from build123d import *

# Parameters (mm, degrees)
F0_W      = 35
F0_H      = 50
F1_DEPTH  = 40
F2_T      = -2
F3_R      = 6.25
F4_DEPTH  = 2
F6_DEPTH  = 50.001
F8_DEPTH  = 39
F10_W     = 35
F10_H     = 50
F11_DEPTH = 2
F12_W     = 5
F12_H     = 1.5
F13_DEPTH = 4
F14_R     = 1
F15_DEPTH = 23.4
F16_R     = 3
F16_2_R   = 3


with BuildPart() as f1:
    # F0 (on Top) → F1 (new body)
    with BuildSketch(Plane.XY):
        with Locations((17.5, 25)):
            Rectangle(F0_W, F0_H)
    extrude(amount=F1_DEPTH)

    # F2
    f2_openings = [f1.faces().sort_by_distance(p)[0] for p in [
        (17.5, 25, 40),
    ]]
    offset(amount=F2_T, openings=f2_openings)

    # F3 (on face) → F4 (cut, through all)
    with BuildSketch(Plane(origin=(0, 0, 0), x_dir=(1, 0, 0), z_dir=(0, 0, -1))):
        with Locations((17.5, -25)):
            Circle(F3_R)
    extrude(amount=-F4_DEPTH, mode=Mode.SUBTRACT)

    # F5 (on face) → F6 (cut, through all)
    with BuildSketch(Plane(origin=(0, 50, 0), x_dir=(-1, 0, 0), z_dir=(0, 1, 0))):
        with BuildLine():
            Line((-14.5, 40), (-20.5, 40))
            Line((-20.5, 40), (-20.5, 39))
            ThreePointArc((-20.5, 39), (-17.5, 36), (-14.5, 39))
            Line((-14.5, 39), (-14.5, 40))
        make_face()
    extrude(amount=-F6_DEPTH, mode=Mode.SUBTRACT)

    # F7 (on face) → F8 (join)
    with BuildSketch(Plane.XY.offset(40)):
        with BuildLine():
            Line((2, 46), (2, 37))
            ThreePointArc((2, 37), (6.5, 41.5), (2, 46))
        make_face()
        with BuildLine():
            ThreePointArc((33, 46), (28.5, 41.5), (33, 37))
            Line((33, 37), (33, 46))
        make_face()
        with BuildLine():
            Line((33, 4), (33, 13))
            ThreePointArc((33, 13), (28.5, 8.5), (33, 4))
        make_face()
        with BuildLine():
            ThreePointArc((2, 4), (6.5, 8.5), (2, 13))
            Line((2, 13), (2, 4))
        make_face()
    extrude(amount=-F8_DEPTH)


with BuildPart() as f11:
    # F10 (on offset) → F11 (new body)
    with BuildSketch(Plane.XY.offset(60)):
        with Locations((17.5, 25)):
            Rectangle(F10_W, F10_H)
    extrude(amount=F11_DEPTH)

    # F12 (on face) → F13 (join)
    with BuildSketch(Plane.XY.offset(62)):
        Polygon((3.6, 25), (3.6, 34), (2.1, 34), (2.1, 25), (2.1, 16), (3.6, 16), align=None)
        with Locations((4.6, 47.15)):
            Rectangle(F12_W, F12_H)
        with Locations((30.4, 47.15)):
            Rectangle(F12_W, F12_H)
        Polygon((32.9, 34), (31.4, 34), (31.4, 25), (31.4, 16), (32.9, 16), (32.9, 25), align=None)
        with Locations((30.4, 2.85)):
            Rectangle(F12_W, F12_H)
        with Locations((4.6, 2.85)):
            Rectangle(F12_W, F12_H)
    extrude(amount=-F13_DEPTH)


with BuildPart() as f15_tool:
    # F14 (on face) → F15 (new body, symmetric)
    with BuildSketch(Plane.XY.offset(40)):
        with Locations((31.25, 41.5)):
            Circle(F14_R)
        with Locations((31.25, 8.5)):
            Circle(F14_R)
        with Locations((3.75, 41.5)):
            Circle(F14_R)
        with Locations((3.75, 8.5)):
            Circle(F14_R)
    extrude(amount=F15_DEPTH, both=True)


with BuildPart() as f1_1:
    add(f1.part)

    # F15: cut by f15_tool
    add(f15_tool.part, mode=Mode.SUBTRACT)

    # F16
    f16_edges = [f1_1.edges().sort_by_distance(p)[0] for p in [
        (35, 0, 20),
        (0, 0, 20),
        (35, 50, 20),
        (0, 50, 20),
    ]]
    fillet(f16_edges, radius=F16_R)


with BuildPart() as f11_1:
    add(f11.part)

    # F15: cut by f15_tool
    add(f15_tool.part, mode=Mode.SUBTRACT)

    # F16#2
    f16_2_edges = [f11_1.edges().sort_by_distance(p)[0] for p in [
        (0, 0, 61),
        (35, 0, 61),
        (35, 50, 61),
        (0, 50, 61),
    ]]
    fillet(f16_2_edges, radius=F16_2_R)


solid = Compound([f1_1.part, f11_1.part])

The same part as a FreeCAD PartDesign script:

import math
import FreeCAD as App
import Part
import Sketcher
from FreeCAD import Vector


def edges_at(feature, points):
    """Names of the edges that pass closest to the given points."""
    edges = feature.Shape.Edges
    near = lambda p: min(range(len(edges)), key=lambda i: edges[i].distToShape(Part.Vertex(*p))[0])
    return sorted({f"Edge{near(p) + 1}" for p in points})


def faces_at(feature, points):
    """Names of the faces that lie closest to the given points."""
    faces = feature.Shape.Faces
    near = lambda p: min(range(len(faces)), key=lambda i: faces[i].distToShape(Part.Vertex(*p))[0])
    return sorted({f"Face{near(p) + 1}" for p in points})


def add_polygon(sketch, points):
    """Adds a closed chain of lines whose ends are joined by coincident constraints."""
    first, n = sketch.GeometryCount, len(points)
    for a, b in zip(points, points[1:] + points[:1]):
        sketch.addGeometry(Part.LineSegment(App.Vector(*a, 0), App.Vector(*b, 0)), False)
    for i in range(n):
        sketch.addConstraint(Sketcher.Constraint("Coincident", first + i, 2, first + (i + 1) % n, 1))

doc = App.newDocument("Part")
params = doc.addObject("Spreadsheet::Sheet", "Params")
for row, (alias, value) in enumerate([
    ("sketch1_width", "35 mm"),
    ("sketch1_height", "50 mm"),
    ("pad1_length", "40 mm"),
    ("thickness_wall", "2 mm"),
    ("sketch2_diameter", "12.5 mm"),
    ("sketch3_radius", "3 mm"),
    ("sketch3_height", "1 mm"),
    ("sketch4_radius", "4.5 mm"),
    ("pad2_length", "39 mm"),
    ("sketch5_width", "35 mm"),
    ("sketch5_height", "50 mm"),
    ("pad3_length", "2 mm"),
    ("sketch6_width", "5 mm"),
    ("sketch6_height", "18 mm"),
    ("sketch6_width2", "1.5 mm"),
    ("pad4_length", "4 mm"),
    ("sketch7_diameter", "2 mm"),
    ("pad5_length", "46.8 mm"),
    ("fillet_radius", "3 mm"),
    ("fillet2_radius", "3 mm"),
], start=1):
    params.set(f"A{row}", alias)
    params.set(f"B{row}", "=" + value)
    params.setAlias(f"B{row}", alias)

body = doc.addObject("PartDesign::Body", "Body")

# Sketch on XY plane
sketch1 = doc.addObject("Sketcher::SketchObject", "Sketch")
body.addObject(sketch1)
sketch1.AttachmentSupport = (doc.XY_Plane, [""])
sketch1.MapMode = "FlatFace"
add_polygon(sketch1, [(0, 50), (0, 0), (35, 0), (35, 50)])  # lines 0-3
sketch1.addConstraint([
    Sketcher.Constraint("Vertical", 0),
    Sketcher.Constraint("Horizontal", 1),
    Sketcher.Constraint("Vertical", 2),
    Sketcher.Constraint("Horizontal", 3),
    Sketcher.Constraint("Coincident", 0, 2, -1, 1),
    Sketcher.Constraint("DistanceX", 1, 1, 1, 2, 35.0),
    Sketcher.Constraint("DistanceY", 0, 2, 0, 1, 50.0),
])
sketch1.setExpression("Constraints[9]", "Params.sketch1_width")
sketch1.setExpression("Constraints[10]", "Params.sketch1_height")
pad1 = doc.addObject("PartDesign::Pad", "Pad")
body.addObject(pad1)
pad1.Profile = sketch1
pad1.setExpression("Length", "Params.pad1_length")
doc.recompute()

thickness = doc.addObject("PartDesign::Thickness", "Thickness")
body.addObject(thickness)
thickness.Base = (pad1, faces_at(pad1, [(17.5, 25, 40)]))
thickness.setExpression("Value", "Params.thickness_wall")
thickness.Reversed = True
thickness.Join = "Arc"

# Sketch on XY plane
sketch2 = doc.addObject("Sketcher::SketchObject", "Sketch001")
body.addObject(sketch2)
sketch2.AttachmentSupport = (doc.XY_Plane, [""])
sketch2.MapMode = "FlatFace"
sketch2.addGeometry(Part.Circle(Vector(17.5, 25, 0), Vector(0, 0, 1), 6.25), False)
sketch2.addConstraint([
    Sketcher.Constraint("Diameter", 0, 12.5),
    Sketcher.Constraint("DistanceY", -1, 1, 0, 3, 25.0),
    Sketcher.Constraint("DistanceX", -1, 1, 0, 3, 17.5),
])
sketch2.setExpression("Constraints[0]", "Params.sketch2_diameter")
pocket1 = doc.addObject("PartDesign::Pocket", "Pocket")
body.addObject(pocket1)
pocket1.Profile = sketch2
pocket1.Type = "ThroughAll"
pocket1.Reversed = True

# Sketch on XZ plane
sketch3 = doc.addObject("Sketcher::SketchObject", "Sketch002")
body.addObject(sketch3)
sketch3.AttachmentSupport = (doc.XZ_Plane, [""])
sketch3.MapMode = "FlatFace"
sketch3.AttachmentOffset = App.Placement(Vector(0, 0, -50), App.Rotation())
sketch3.addGeometry([
    Part.LineSegment(Vector(14.5, 40, 0), Vector(20.5, 40, 0)),
    Part.LineSegment(Vector(20.5, 40, 0), Vector(20.5, 39, 0)),
    Part.ArcOfCircle(Part.Circle(Vector(17.5, 39, 0), Vector(0, 0, 1), 3), math.radians(180), math.radians(360)),
    Part.LineSegment(Vector(14.5, 39, 0), Vector(14.5, 40, 0)),
], False)
sketch3.addConstraint([
    Sketcher.Constraint("Coincident", 0, 2, 1, 1),
    Sketcher.Constraint("Tangent", 1, 2, 2, 2),
    Sketcher.Constraint("Tangent", 2, 1, 3, 1),
    Sketcher.Constraint("Coincident", 3, 2, 0, 1),
    Sketcher.Constraint("Horizontal", 0),
    Sketcher.Constraint("Vertical", 1),
    Sketcher.Constraint("Vertical", 3),
    Sketcher.Constraint("Radius", 2, 3.0),
    Sketcher.Constraint("DistanceY", 1, 2, 1, 1, 1.0),
    Sketcher.Constraint("DistanceY", -1, 1, 2, 3, 39.0),
    Sketcher.Constraint("DistanceX", -1, 1, 2, 3, 17.5),
])
sketch3.setExpression("Constraints[7]", "Params.sketch3_radius")
sketch3.setExpression("Constraints[8]", "Params.sketch3_height")
pocket2 = doc.addObject("PartDesign::Pocket", "Pocket001")
body.addObject(pocket2)
pocket2.Profile = sketch3
pocket2.Type = "ThroughAll"
pocket2.Reversed = True

# Sketch on XY plane
sketch4 = doc.addObject("Sketcher::SketchObject", "Sketch003")
body.addObject(sketch4)
sketch4.AttachmentSupport = (doc.XY_Plane, [""])
sketch4.MapMode = "FlatFace"
sketch4.AttachmentOffset = App.Placement(Vector(0, 0, 40), App.Rotation())
sketch4.addGeometry([
    Part.LineSegment(Vector(2, 46, 0), Vector(2, 37, 0)),  # 0
    Part.ArcOfCircle(Part.Circle(Vector(2, 41.5, 0), Vector(0, 0, 1), 4.5), math.radians(-90), math.radians(90)),  # 1
    Part.ArcOfCircle(Part.Circle(Vector(33, 41.5, 0), Vector(0, 0, 1), 4.5), math.radians(90), math.radians(270)),  # 2
    Part.LineSegment(Vector(33, 37, 0), Vector(33, 46, 0)),  # 3
    Part.LineSegment(Vector(33, 4, 0), Vector(33, 13, 0)),  # 4
    Part.ArcOfCircle(Part.Circle(Vector(33, 8.5, 0), Vector(0, 0, 1), 4.5), math.radians(90), math.radians(270)),  # 5
    Part.ArcOfCircle(Part.Circle(Vector(2, 8.5, 0), Vector(0, 0, 1), 4.5), math.radians(-90), math.radians(90)),  # 6
    Part.LineSegment(Vector(2, 13, 0), Vector(2, 4, 0)),  # 7
], False)
sketch4.addConstraint([
    Sketcher.Constraint("Coincident", 0, 1, 1, 2),
    Sketcher.Constraint("Coincident", 1, 1, 0, 2),
    Sketcher.Constraint("Coincident", 2, 1, 3, 2),
    Sketcher.Constraint("Coincident", 3, 1, 2, 2),
    Sketcher.Constraint("Coincident", 4, 1, 5, 2),
    Sketcher.Constraint("Coincident", 5, 1, 4, 2),
    Sketcher.Constraint("Coincident", 6, 1, 7, 2),
    Sketcher.Constraint("Coincident", 7, 1, 6, 2),
    Sketcher.Constraint("Vertical", 0),
    Sketcher.Constraint("Vertical", 3),
    Sketcher.Constraint("Vertical", 4),
    Sketcher.Constraint("Vertical", 7),
    Sketcher.Constraint("Equal", 1, 2),
    Sketcher.Constraint("Equal", 2, 5),
    Sketcher.Constraint("Equal", 5, 6),
    Sketcher.Constraint("Horizontal", 1, 3, 2, 3),
    Sketcher.Constraint("Horizontal", 5, 3, 6, 3),
    Sketcher.Constraint("Vertical", 2, 3, 5, 3),
    Sketcher.Constraint("Vertical", 1, 3, 6, 3),
    Sketcher.Constraint("Vertical", 6, 3, 0, 1),
    Sketcher.Constraint("Vertical", 5, 3, 2, 1),
    Sketcher.Constraint("Vertical", 3, 1, 4, 1),
    Sketcher.Constraint("Vertical", 1, 1, 6, 1),
    Sketcher.Constraint("Radius", 1, 4.5),
    Sketcher.Constraint("DistanceX", -1, 1, 1, 3, 2.0),
    Sketcher.Constraint("DistanceX", -1, 1, 2, 3, 33.0),
    Sketcher.Constraint("DistanceY", -1, 1, 0, 1, 46.0),
    Sketcher.Constraint("DistanceY", -1, 1, 4, 1, 4.0),
])
sketch4.setExpression("Constraints[23]", "Params.sketch4_radius")
pad2 = doc.addObject("PartDesign::Pad", "Pad001")
body.addObject(pad2)
pad2.Profile = sketch4
pad2.setExpression("Length", "Params.pad2_length")
pad2.Reversed = True
body2 = doc.addObject("PartDesign::Body", "Body001")

# Sketch on XY plane
sketch5 = doc.addObject("Sketcher::SketchObject", "Sketch004")
body2.addObject(sketch5)
sketch5.AttachmentSupport = (doc.getObject("XY_Plane001"), [""])
sketch5.MapMode = "FlatFace"
sketch5.AttachmentOffset = App.Placement(Vector(0, 0, 60), App.Rotation())
add_polygon(sketch5, [(0, 50), (0, 0), (35, 0), (35, 50)])  # lines 0-3
sketch5.addConstraint([
    Sketcher.Constraint("Vertical", 0),
    Sketcher.Constraint("Horizontal", 1),
    Sketcher.Constraint("Vertical", 2),
    Sketcher.Constraint("Horizontal", 3),
    Sketcher.Constraint("Coincident", 0, 2, -1, 1),
    Sketcher.Constraint("DistanceX", 1, 1, 1, 2, 35.0),
    Sketcher.Constraint("DistanceY", 0, 2, 0, 1, 50.0),
])
sketch5.setExpression("Constraints[9]", "Params.sketch5_width")
sketch5.setExpression("Constraints[10]", "Params.sketch5_height")
pad3 = doc.addObject("PartDesign::Pad", "Pad002")
body2.addObject(pad3)
pad3.Profile = sketch5
pad3.setExpression("Length", "Params.pad3_length")

# Sketch on XY plane
sketch6 = doc.addObject("Sketcher::SketchObject", "Sketch005")
body2.addObject(sketch6)
sketch6.AttachmentSupport = (doc.getObject("XY_Plane001"), [""])
sketch6.MapMode = "FlatFace"
sketch6.AttachmentOffset = App.Placement(Vector(0, 0, 62), App.Rotation())
add_polygon(sketch6, [(3.6, 34), (2.1, 34), (2.1, 16), (3.6, 16)])  # lines 0-3
add_polygon(sketch6, [(2.1, 47.9), (2.1, 46.4), (7.1, 46.4), (7.1, 47.9)])  # lines 4-7
add_polygon(sketch6, [(27.9, 47.9), (27.9, 46.4), (32.9, 46.4), (32.9, 47.9)])  # lines 8-11
add_polygon(sketch6, [(32.9, 34), (31.4, 34), (31.4, 16), (32.9, 16)])  # lines 12-15
add_polygon(sketch6, [(27.9, 3.6), (27.9, 2.1), (32.9, 2.1), (32.9, 3.6)])  # lines 16-19
add_polygon(sketch6, [(2.1, 3.6), (2.1, 2.1), (7.1, 2.1), (7.1, 3.6)])  # lines 20-23
sketch6.addConstraint([
    Sketcher.Constraint("Horizontal", 0),
    Sketcher.Constraint("Vertical", 1),
    Sketcher.Constraint("Horizontal", 2),
    Sketcher.Constraint("Vertical", 3),
    Sketcher.Constraint("Vertical", 4),
    Sketcher.Constraint("Horizontal", 5),
    Sketcher.Constraint("Vertical", 6),
    Sketcher.Constraint("Horizontal", 7),
    Sketcher.Constraint("Vertical", 8),
    Sketcher.Constraint("Horizontal", 9),
    Sketcher.Constraint("Vertical", 10),
    Sketcher.Constraint("Horizontal", 11),
    Sketcher.Constraint("Horizontal", 12),
    Sketcher.Constraint("Vertical", 13),
    Sketcher.Constraint("Horizontal", 14),
    Sketcher.Constraint("Vertical", 15),
    Sketcher.Constraint("Vertical", 16),
    Sketcher.Constraint("Horizontal", 17),
    Sketcher.Constraint("Vertical", 18),
    Sketcher.Constraint("Horizontal", 19),
    Sketcher.Constraint("Vertical", 20),
    Sketcher.Constraint("Horizontal", 21),
    Sketcher.Constraint("Vertical", 22),
    Sketcher.Constraint("Horizontal", 23),
    Sketcher.Constraint("Horizontal", 5, 2, 8, 2),
    Sketcher.Constraint("Horizontal", 7, 2, 10, 2),
    Sketcher.Constraint("Horizontal", 3, 2, 12, 2),
    Sketcher.Constraint("Horizontal", 2, 2, 13, 2),
    Sketcher.Constraint("Horizontal", 17, 2, 20, 2),
    Sketcher.Constraint("Horizontal", 19, 2, 22, 2),
    Sketcher.Constraint("Vertical", 1, 2, 4, 2),
    Sketcher.Constraint("Vertical", 10, 2, 14, 2),
    Sketcher.Constraint("Vertical", 11, 2, 16, 2),
    Sketcher.Constraint("Vertical", 15, 2, 17, 2),
    Sketcher.Constraint("Vertical", 7, 2, 20, 2),
    Sketcher.Constraint("Vertical", 6, 2, 21, 2),
    Sketcher.Constraint("Equal", 7, 9),
    Sketcher.Constraint("Equal", 2, 12),
    Sketcher.Constraint("Equal", 14, 4),
    Sketcher.Constraint("Equal", 10, 16),
    Sketcher.Constraint("DistanceX", 5, 1, 5, 2, 5.0),
    Sketcher.Constraint("DistanceY", 1, 2, 1, 1, 18.0),
    Sketcher.Constraint("DistanceX", 0, 2, 0, 1, 1.5),
    Sketcher.Constraint("DistanceY", -1, 1, 0, 2, 34.0),
    Sketcher.Constraint("DistanceX", -1, 1, 0, 2, 2.1),
    Sketcher.Constraint("DistanceY", -1, 1, 4, 2, 46.4),
    Sketcher.Constraint("DistanceX", -1, 1, 8, 2, 27.9),
    Sketcher.Constraint("DistanceY", -1, 1, 16, 2, 2.1),
])
sketch6.setExpression("Constraints[64]", "Params.sketch6_width")
sketch6.setExpression("Constraints[65]", "Params.sketch6_height")
sketch6.setExpression("Constraints[66]", "Params.sketch6_width2")
pad4 = doc.addObject("PartDesign::Pad", "Pad003")
body2.addObject(pad4)
pad4.Profile = sketch6
pad4.setExpression("Length", "Params.pad4_length")
pad4.Reversed = True
body3 = doc.addObject("PartDesign::Body", "Body002")
body3.AllowCompound = True

# Sketch on XY plane
sketch7 = doc.addObject("Sketcher::SketchObject", "Sketch006")
body3.addObject(sketch7)
sketch7.AttachmentSupport = (doc.getObject("XY_Plane002"), [""])
sketch7.MapMode = "FlatFace"
sketch7.AttachmentOffset = App.Placement(Vector(0, 0, 40), App.Rotation())
sketch7.addGeometry([
    Part.Circle(Vector(31.25, 41.5, 0), Vector(0, 0, 1), 1),
    Part.Circle(Vector(31.25, 8.5, 0), Vector(0, 0, 1), 1),
    Part.Circle(Vector(3.75, 41.5, 0), Vector(0, 0, 1), 1),
    Part.Circle(Vector(3.75, 8.5, 0), Vector(0, 0, 1), 1),
], False)
sketch7.addConstraint([
    Sketcher.Constraint("Equal", 0, 1),
    Sketcher.Constraint("Equal", 1, 2),
    Sketcher.Constraint("Equal", 2, 3),
    Sketcher.Constraint("Horizontal", 0, 3, 2, 3),
    Sketcher.Constraint("Horizontal", 1, 3, 3, 3),
    Sketcher.Constraint("Vertical", 0, 3, 1, 3),
    Sketcher.Constraint("Vertical", 2, 3, 3, 3),
    Sketcher.Constraint("Diameter", 0, 2.0),
    Sketcher.Constraint("DistanceY", 1, 3, 0, 3, 33.0),
    Sketcher.Constraint("DistanceY", -1, 1, 0, 3, 41.5),
    Sketcher.Constraint("DistanceX", 2, 3, 0, 3, 27.5),
    Sketcher.Constraint("DistanceX", -1, 1, 0, 3, 31.25),
])
sketch7.setExpression("Constraints[7]", "Params.sketch7_diameter")
pad5 = doc.addObject("PartDesign::Pad", "Pad004")
body3.addObject(pad5)
pad5.Profile = sketch7
pad5.setExpression("Length", "Params.pad5_length")
pad5.Midplane = True
doc.recompute()

body4 = doc.addObject("PartDesign::Body", "Body003")
body4.BaseFeature = body3
boolean = doc.addObject("PartDesign::Boolean", "Boolean")
body.addObject(boolean)
boolean.Type = "Cut"
boolean.addObjects([body4])
doc.recompute()

fillet = doc.addObject("PartDesign::Fillet", "Fillet")
body.addObject(fillet)
fillet.Base = (boolean, edges_at(boolean, [
    (35, 0, 20),
    (0, 0, 20),
    (35, 50, 20),
    (0, 50, 20),
]))
fillet.setExpression("Radius", "Params.fillet_radius")
doc.recompute()

boolean2 = doc.addObject("PartDesign::Boolean", "Boolean001")
body2.addObject(boolean2)
boolean2.Type = "Cut"
boolean2.addObjects([body3])
doc.recompute()

fillet2 = doc.addObject("PartDesign::Fillet", "Fillet001")
body2.addObject(fillet2)
fillet2.Base = (boolean2, edges_at(boolean2, [
    (0, 0, 61),
    (35, 0, 61),
    (35, 50, 61),
    (0, 50, 61),
]))
fillet2.setExpression("Radius", "Params.fillet2_radius")

doc.recompute()
